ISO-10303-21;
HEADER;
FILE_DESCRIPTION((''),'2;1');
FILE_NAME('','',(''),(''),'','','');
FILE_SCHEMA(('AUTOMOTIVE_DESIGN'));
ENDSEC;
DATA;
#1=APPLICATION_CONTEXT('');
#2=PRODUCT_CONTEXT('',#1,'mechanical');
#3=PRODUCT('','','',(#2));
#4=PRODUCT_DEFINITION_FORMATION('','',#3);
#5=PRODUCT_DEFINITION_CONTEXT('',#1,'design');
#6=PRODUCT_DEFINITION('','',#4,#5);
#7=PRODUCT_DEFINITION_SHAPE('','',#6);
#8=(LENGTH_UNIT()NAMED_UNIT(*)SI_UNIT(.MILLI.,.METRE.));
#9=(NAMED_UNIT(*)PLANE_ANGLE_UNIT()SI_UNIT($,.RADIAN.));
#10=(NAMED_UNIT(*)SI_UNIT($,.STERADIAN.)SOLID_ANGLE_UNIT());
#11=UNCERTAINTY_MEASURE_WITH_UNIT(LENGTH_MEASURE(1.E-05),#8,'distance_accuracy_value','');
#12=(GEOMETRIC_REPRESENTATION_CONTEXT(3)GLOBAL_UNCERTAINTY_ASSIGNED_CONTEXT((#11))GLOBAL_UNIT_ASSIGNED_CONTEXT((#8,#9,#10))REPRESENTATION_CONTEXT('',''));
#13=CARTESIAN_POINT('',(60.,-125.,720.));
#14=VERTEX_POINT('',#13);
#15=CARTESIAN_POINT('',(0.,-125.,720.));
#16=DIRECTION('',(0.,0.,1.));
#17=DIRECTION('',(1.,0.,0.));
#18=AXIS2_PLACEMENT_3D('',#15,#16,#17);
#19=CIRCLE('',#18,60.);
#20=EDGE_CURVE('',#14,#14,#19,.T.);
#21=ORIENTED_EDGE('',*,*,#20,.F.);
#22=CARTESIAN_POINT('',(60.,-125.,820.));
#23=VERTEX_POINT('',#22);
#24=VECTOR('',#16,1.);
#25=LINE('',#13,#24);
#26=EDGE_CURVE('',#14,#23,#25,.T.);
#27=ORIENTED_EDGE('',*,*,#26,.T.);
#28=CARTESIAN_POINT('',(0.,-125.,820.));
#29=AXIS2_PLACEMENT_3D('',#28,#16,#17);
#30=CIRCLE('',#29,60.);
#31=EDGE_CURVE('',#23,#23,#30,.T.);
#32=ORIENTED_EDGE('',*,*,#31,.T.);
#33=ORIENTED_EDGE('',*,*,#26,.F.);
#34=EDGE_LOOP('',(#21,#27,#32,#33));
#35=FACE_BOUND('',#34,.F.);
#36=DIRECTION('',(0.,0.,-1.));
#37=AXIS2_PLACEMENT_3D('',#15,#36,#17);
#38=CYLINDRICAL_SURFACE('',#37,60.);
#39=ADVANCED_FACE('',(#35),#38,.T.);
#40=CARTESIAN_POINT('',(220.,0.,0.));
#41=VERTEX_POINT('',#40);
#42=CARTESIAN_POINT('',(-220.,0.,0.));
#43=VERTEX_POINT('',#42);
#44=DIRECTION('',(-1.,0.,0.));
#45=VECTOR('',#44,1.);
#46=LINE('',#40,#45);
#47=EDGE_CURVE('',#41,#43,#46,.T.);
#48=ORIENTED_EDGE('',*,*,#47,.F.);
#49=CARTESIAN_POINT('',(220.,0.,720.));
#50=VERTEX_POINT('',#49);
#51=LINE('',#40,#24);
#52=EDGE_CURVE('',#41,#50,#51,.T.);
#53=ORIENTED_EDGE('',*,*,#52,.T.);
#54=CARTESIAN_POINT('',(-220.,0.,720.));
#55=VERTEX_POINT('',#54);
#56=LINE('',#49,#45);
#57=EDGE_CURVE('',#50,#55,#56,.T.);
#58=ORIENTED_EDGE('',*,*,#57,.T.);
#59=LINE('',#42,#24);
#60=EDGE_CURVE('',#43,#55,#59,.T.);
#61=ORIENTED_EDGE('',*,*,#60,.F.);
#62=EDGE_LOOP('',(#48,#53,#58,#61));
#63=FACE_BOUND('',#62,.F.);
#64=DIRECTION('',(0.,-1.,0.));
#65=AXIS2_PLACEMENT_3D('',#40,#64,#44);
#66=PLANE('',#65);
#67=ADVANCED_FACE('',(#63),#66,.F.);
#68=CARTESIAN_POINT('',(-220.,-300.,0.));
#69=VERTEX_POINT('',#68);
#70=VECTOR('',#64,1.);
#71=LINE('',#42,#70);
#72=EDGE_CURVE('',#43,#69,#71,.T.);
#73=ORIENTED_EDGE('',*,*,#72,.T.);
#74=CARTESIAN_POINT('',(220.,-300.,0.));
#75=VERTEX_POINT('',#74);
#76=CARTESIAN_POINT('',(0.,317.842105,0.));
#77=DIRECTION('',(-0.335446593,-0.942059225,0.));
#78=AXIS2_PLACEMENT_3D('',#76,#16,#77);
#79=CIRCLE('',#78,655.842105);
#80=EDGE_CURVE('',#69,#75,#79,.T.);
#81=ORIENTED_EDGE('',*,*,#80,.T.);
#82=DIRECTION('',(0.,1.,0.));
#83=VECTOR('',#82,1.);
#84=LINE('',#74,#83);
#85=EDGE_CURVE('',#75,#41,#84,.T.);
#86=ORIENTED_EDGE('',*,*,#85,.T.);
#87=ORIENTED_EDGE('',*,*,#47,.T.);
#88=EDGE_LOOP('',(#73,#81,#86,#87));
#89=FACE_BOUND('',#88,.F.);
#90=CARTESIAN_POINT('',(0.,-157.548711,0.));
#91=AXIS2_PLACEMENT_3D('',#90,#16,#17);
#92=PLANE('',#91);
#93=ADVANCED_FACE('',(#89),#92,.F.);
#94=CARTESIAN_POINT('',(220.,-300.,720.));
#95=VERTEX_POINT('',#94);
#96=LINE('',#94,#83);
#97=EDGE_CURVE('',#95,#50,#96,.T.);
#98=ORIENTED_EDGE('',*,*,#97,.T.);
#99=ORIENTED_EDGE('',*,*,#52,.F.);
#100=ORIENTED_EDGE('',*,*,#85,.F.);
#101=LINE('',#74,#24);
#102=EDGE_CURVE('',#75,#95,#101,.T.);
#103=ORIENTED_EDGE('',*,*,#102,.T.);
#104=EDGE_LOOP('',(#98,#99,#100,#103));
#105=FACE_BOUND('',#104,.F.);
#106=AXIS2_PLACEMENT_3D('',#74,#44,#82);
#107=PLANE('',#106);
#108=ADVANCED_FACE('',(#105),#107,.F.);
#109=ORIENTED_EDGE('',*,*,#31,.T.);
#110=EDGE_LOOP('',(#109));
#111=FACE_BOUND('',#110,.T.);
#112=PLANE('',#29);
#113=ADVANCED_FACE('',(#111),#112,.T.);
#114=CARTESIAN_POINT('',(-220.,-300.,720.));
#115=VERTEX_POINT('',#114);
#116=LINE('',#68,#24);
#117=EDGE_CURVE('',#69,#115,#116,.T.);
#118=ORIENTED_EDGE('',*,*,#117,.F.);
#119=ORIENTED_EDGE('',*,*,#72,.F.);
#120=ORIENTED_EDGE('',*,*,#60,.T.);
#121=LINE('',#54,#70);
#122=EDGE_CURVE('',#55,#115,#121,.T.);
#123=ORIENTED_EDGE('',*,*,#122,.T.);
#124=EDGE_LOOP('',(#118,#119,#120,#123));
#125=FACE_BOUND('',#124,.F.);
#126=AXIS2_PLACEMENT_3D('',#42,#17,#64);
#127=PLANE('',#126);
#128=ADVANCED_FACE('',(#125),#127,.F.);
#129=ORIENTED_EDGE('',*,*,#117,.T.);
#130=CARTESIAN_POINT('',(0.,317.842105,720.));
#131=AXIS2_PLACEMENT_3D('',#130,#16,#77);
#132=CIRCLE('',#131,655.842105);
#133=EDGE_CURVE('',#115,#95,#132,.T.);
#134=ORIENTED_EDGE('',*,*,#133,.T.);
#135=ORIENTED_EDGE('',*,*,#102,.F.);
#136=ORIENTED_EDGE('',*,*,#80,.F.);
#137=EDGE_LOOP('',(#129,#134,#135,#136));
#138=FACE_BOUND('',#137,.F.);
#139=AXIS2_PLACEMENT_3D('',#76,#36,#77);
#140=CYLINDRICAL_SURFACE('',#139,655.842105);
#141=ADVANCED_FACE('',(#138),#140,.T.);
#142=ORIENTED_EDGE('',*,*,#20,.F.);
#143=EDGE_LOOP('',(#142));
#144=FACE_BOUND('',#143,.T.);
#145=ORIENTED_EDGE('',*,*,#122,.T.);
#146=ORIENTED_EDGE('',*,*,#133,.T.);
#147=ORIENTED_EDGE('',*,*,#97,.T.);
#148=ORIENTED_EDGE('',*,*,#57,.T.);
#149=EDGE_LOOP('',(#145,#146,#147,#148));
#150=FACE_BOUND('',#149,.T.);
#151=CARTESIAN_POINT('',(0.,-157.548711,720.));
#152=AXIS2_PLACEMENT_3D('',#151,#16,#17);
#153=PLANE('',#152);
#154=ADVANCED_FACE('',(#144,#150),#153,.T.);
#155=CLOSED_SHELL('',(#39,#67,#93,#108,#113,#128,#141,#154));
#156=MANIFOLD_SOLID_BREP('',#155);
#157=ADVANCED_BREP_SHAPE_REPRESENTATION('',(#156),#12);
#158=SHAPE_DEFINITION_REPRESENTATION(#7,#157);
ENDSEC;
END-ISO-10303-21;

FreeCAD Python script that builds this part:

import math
import FreeCAD as App
import Part
import Sketcher
from FreeCAD import Vector

doc = App.newDocument("Part")
params = doc.addObject("Spreadsheet::Sheet", "Params")
for row, (alias, value) in enumerate([
    ("sketch1_width", "440 mm"),
    ("sketch1_height", "300 mm"),
    ("pad1_length", "720 mm"),
    ("sketch2_diameter", "120 mm"),
    ("pad2_length", "100 mm"),
], start=1):
    params.set(f"A{row}", alias)
    params.set(f"B{row}", "=" + value)
    params.setAlias(f"B{row}", alias)

body = doc.addObject("PartDesign::Body", "Body")

# Sketch on XY plane
sketch1 = body.newObject("Sketcher::SketchObject", "Sketch")
sketch1.AttachmentSupport = (doc.getObject("XY_Plane"), [""])
sketch1.MapMode = "FlatFace"
sketch1.addGeometry([
    Part.LineSegment(Vector(-220, 0, 0), Vector(-220, -300, 0)),
    Part.ArcOfCircle(Part.Circle(Vector(0, 317.842105, 0), Vector(0, 0, 1), 655.842105), math.radians(-109.599697), math.radians(-70.400303)),
    Part.LineSegment(Vector(220, -300, 0), Vector(220, 0, 0)),
    Part.LineSegment(Vector(220, 0, 0), Vector(-220, 0, 0)),
], False)
sketch1.addConstraint([
    Sketcher.Constraint("Coincident", 0, 2, 1, 1),
    Sketcher.Constraint("Coincident", 1, 2, 2, 1),
    Sketcher.Constraint("Coincident", 2, 2, 3, 1),
    Sketcher.Constraint("Coincident", 3, 2, 0, 1),
    Sketcher.Constraint("Vertical", 0),
    Sketcher.Constraint("Vertical", 2),
    Sketcher.Constraint("Horizontal", 3),
    Sketcher.Constraint("Symmetric", 2, 2, 3, 2, -1, 1),
    Sketcher.Constraint("PointOnObject", 1, 3, -2),
    Sketcher.Constraint("DistanceX", 3, 2, 3, 1, 440.0),
    Sketcher.Constraint("DistanceY", 0, 2, 0, 1, 300.0),
    Sketcher.Constraint("Radius", 1, 655.842105),
])
sketch1.setExpression("Constraints[9]", "Params.sketch1_width")
sketch1.setExpression("Constraints[10]", "Params.sketch1_height")
pad1 = body.newObject("PartDesign::Pad", "Pad")
pad1.Profile = sketch1
pad1.setExpression("Length", "Params.pad1_length")

# Sketch on XY plane
sketch2 = body.newObject("Sketcher::SketchObject", "Sketch001")
sketch2.AttachmentSupport = (doc.getObject("XY_Plane"), [""])
sketch2.MapMode = "FlatFace"
sketch2.AttachmentOffset = App.Placement(Vector(0, 0, 720), App.Rotation())
sketch2.addGeometry(Part.Circle(Vector(0, -125, 0), Vector(0, 0, 1), 60), False)
sketch2.addConstraint([
    Sketcher.Constraint("PointOnObject", 0, 3, -2),
    Sketcher.Constraint("Diameter", 0, 120.0),
    Sketcher.Constraint("DistanceY", 0, 3, -1, 1, 125.0),
])
sketch2.setExpression("Constraints[1]", "Params.sketch2_diameter")
pad2 = body.newObject("PartDesign::Pad", "Pad001")
pad2.Profile = sketch2
pad2.setExpression("Length", "Params.pad2_length")

doc.recompute()
